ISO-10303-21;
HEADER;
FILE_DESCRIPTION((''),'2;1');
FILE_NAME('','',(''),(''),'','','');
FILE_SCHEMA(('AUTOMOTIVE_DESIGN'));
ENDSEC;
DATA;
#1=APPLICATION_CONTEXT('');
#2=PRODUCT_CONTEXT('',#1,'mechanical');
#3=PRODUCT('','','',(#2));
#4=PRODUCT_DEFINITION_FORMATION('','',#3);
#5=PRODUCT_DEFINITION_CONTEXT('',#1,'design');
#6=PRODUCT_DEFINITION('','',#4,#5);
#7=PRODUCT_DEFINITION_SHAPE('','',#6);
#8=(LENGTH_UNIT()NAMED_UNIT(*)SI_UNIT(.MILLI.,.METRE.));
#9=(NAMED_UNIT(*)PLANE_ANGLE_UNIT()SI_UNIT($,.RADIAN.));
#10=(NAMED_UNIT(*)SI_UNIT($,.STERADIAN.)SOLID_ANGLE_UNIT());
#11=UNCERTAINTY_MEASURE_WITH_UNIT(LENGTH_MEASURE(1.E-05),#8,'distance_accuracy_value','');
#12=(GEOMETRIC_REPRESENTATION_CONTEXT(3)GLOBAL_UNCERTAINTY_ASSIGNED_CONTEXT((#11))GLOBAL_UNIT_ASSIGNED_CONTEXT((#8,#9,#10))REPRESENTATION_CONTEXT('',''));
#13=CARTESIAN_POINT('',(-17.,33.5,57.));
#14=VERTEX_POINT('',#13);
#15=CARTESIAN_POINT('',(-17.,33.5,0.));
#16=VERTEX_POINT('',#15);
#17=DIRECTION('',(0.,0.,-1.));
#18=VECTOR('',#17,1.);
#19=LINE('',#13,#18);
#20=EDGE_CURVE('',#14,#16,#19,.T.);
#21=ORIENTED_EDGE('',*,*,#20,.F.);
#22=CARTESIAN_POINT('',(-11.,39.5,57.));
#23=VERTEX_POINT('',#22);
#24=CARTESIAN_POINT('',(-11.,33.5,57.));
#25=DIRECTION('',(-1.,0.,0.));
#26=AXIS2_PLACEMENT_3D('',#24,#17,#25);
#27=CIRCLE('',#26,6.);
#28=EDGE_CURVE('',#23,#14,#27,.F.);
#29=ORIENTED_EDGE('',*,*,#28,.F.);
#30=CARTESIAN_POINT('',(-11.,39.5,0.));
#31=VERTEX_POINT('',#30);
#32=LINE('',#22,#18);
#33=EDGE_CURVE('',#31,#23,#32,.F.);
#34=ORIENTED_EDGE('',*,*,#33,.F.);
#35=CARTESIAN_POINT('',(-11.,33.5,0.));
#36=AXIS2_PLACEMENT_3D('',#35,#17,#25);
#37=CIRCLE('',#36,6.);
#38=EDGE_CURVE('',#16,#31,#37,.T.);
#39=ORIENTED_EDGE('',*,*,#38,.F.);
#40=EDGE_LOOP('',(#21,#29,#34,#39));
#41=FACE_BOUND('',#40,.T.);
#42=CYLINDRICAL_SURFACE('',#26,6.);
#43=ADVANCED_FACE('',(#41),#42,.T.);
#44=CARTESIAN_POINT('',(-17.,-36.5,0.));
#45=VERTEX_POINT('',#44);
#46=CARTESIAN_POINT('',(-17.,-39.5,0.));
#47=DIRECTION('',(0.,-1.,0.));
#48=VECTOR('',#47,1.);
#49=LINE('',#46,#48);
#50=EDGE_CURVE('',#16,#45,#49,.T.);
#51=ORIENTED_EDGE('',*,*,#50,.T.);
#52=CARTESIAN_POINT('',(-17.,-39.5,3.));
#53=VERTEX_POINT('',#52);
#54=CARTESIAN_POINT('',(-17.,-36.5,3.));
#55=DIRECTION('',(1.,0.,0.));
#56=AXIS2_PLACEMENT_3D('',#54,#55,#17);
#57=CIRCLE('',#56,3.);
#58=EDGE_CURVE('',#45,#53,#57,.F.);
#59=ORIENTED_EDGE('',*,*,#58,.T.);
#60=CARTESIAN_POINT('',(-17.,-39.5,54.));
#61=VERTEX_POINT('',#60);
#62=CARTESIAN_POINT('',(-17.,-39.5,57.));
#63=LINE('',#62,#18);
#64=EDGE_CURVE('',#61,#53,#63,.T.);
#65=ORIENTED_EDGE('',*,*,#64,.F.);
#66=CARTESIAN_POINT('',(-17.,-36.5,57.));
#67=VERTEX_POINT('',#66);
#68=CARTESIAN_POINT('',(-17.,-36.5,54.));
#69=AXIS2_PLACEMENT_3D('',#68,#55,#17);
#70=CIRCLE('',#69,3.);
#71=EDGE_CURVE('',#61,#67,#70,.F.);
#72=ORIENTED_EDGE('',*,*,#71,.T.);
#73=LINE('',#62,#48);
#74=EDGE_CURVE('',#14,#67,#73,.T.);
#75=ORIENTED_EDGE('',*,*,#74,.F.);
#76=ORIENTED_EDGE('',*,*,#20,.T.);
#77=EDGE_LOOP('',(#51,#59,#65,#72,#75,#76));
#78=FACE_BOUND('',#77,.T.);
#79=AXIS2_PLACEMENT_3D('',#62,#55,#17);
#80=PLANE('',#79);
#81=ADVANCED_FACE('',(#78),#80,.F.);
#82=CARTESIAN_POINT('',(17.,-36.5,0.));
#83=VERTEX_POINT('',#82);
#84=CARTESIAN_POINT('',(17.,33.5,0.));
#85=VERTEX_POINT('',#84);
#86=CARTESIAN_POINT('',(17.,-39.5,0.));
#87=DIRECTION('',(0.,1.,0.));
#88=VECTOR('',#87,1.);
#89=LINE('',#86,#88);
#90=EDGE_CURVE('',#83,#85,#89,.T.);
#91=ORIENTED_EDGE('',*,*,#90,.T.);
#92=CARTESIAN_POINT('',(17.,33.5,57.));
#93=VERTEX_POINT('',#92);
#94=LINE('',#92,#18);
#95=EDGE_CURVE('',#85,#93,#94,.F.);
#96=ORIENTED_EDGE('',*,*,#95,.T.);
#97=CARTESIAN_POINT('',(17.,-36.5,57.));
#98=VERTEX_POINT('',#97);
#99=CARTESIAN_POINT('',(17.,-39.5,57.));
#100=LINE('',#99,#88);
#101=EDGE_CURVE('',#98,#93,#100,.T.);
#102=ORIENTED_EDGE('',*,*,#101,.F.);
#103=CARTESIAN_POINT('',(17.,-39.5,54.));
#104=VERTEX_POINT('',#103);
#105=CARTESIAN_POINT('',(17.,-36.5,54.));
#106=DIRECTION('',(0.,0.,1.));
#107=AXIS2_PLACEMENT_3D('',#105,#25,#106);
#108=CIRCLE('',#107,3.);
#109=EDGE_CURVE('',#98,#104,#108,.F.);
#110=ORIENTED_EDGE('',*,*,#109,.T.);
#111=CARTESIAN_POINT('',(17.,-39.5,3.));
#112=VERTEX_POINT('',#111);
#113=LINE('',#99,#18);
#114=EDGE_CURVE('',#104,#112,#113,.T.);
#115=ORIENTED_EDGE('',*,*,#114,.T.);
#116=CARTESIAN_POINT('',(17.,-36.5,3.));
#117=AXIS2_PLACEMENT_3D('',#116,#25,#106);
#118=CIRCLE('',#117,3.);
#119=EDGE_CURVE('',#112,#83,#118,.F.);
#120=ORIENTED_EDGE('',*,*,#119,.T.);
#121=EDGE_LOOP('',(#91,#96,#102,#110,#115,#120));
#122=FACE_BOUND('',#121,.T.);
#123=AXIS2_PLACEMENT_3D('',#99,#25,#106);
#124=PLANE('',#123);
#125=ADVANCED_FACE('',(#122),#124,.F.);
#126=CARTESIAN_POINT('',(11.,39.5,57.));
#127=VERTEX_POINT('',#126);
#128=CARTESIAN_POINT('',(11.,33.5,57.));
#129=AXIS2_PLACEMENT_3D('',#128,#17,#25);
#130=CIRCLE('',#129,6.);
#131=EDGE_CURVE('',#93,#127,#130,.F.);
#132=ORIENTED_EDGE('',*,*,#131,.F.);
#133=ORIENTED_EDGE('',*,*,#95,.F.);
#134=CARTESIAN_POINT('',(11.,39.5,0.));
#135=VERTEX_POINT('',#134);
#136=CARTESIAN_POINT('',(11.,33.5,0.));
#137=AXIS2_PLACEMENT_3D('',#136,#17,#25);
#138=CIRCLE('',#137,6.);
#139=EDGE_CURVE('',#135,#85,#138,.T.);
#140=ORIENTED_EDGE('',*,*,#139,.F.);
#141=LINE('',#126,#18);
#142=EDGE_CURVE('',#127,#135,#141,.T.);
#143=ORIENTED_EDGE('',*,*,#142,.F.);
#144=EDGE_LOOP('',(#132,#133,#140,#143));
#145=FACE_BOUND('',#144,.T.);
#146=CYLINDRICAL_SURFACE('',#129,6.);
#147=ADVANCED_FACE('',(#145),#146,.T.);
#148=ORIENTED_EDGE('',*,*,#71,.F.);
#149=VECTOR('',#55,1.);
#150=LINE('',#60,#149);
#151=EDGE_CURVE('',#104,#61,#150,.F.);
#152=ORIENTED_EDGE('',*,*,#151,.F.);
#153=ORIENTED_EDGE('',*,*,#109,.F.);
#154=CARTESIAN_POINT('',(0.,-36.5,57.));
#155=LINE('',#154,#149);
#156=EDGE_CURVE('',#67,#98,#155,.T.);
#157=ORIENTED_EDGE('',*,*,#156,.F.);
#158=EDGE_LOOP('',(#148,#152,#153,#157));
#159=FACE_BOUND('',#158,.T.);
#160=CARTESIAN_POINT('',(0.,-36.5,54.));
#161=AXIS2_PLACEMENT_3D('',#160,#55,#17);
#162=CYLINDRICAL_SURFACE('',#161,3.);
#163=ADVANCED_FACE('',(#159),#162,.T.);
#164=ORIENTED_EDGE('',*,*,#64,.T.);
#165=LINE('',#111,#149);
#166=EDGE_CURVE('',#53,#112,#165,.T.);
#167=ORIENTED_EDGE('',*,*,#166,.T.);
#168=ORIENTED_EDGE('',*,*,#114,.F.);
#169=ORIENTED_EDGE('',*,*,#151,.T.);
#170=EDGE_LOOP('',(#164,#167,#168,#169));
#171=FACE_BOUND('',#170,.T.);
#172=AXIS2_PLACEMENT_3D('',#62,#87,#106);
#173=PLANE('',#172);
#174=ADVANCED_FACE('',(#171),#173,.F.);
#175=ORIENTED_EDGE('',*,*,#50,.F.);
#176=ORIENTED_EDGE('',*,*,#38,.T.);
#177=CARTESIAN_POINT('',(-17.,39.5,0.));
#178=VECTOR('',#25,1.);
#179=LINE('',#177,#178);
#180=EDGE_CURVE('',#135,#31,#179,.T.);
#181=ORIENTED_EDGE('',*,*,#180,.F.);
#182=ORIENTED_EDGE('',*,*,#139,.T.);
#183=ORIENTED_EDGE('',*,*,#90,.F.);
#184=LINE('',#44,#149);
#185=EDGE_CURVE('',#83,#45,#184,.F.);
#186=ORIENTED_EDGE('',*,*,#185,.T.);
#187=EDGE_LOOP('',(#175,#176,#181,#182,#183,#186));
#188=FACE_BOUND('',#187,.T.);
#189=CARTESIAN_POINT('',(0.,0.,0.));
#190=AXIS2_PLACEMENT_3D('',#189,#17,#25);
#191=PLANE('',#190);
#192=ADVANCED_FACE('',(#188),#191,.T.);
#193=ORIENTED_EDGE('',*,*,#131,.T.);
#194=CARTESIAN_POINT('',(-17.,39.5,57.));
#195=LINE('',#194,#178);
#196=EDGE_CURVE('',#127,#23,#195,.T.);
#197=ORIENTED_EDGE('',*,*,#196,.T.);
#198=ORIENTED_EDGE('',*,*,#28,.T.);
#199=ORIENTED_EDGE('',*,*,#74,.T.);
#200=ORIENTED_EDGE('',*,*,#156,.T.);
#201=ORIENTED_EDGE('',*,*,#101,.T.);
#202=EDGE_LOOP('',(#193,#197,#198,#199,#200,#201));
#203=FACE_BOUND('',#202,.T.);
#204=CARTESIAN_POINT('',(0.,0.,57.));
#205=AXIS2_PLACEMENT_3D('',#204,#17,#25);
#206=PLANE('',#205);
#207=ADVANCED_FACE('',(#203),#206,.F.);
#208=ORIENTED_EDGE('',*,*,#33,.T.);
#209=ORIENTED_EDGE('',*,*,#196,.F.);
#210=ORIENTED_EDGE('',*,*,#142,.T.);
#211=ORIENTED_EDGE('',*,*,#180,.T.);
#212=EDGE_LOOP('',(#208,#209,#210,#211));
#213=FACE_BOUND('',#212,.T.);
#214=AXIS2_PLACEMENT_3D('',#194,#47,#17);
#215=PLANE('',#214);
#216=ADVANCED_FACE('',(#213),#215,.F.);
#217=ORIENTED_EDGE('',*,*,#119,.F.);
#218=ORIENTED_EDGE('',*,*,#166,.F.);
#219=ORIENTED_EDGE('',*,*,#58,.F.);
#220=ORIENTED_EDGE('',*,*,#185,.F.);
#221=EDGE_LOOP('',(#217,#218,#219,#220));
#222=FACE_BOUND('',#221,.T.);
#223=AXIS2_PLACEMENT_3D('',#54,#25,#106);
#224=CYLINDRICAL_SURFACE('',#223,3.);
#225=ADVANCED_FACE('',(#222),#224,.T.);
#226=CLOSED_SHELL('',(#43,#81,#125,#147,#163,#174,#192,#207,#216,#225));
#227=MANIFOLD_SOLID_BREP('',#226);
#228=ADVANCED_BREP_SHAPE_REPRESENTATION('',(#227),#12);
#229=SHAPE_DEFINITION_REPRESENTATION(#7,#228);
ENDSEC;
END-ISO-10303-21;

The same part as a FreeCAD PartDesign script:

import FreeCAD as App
import Part
import Sketcher
from FreeCAD import Vector


def edges_at(feature, points):
    """Names of the edges that pass closest to the given points."""
    edges = feature.Shape.Edges
    near = lambda p: min(range(len(edges)), key=lambda i: edges[i].distToShape(Part.Vertex(*p))[0])
    return sorted({f"Edge{near(p) + 1}" for p in points})


def add_polygon(sketch, points):
    """Adds a closed chain of lines whose ends are joined by coincident constraints."""
    first, n = sketch.GeometryCount, len(points)
    for a, b in zip(points, points[1:] + points[:1]):
        sketch.addGeometry(Part.LineSegment(App.Vector(*a, 0), App.Vector(*b, 0)), False)
    for i in range(n):
        sketch.addConstraint(Sketcher.Constraint("Coincident", first + i, 2, first + (i + 1) % n, 1))

doc = App.newDocument("Part")
body = doc.addObject("PartDesign::Body", "Body")

# Sketch on XY plane
sketch1 = body.newObject("Sketcher::SketchObject", "Sketch")
sketch1.AttachmentSupport = (doc.getObject("XY_Plane"), [""])
sketch1.MapMode = "FlatFace"
add_polygon(sketch1, [(-17, 39.5), (-17, -39.5), (17, -39.5), (17, 39.5)])  # lines 0-3
sketch1.addConstraint(Sketcher.Constraint("Vertical", 0))
sketch1.addConstraint(Sketcher.Constraint("Horizontal", 1))
sketch1.addConstraint(Sketcher.Constraint("Vertical", 2))
sketch1.addConstraint(Sketcher.Constraint("Horizontal", 3))
sketch1.addConstraint(Sketcher.Constraint("Symmetric", 0, 2, 2, 2, -1, 1))
sketch1.addConstraint(Sketcher.Constraint("DistanceX", 1, 1, 1, 2, 34.0))
sketch1.addConstraint(Sketcher.Constraint("DistanceY", 0, 2, 0, 1, 79.0))
pad1 = body.newObject("PartDesign::Pad", "Pad")
pad1.Profile = sketch1
pad1.Length = 57
doc.recompute()

fillet = body.newObject("PartDesign::Fillet", "Fillet")
fillet.Base = (pad1, edges_at(pad1, [(-17, 39.5, 28.5), (17, 39.5, 28.5)]))
fillet.Radius = 6
doc.recompute()

fillet2 = body.newObject("PartDesign::Fillet", "Fillet001")
fillet2.Base = (fillet, edges_at(fillet, [(0, -39.5, 57), (0, -39.5, 0)]))
fillet2.Radius = 3

doc.recompute()
